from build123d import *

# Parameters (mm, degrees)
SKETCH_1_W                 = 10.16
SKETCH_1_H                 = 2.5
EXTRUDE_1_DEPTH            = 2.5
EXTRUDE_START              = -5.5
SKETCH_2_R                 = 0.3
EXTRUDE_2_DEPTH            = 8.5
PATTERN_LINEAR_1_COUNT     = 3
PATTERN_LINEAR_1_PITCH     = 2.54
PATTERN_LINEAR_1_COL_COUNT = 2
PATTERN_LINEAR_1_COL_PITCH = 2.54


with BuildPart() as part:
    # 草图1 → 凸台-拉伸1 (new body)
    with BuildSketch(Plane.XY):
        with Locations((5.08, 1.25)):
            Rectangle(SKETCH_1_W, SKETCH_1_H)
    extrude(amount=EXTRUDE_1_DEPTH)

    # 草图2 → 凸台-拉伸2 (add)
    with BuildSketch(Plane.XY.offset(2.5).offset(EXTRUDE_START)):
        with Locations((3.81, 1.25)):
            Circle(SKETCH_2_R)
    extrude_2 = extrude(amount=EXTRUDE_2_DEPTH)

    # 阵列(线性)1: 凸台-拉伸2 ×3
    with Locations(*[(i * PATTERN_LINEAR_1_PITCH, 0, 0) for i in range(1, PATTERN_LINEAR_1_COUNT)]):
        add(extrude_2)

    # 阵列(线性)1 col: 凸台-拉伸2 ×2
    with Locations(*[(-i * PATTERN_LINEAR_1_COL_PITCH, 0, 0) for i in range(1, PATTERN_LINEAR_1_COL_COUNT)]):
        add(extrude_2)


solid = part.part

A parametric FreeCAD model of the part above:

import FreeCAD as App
import Part
import Sketcher
Q = App.Units.Quantity

doc = App.newDocument("Part")
body = doc.addObject("PartDesign::Body", "Body")

# Sketch on XY plane
sketch1 = doc.addObject("Sketcher::SketchObject", "Sketch")
body.addObject(sketch1)
sketch1.AttachmentSupport = (doc.XY_Plane, [""])
sketch1.MapMode = "FlatFace"
sketch1.addGeometry(Part.LineSegment(App.Vector(0, 2.5, 0), App.Vector(0, 0, 0)), False)
sketch1.addGeometry(Part.LineSegment(App.Vector(0, 0, 0), App.Vector(10.2, 0, 0)), False)
sketch1.addGeometry(Part.LineSegment(App.Vector(10.2, 0, 0), App.Vector(10.2, 2.5, 0)), False)
sketch1.addGeometry(Part.LineSegment(App.Vector(10.2, 2.5, 0), App.Vector(0, 2.5, 0)), False)
sketch1.addConstraint(Sketcher.Constraint("Coincident", 0, 2, 1, 1))
sketch1.addConstraint(Sketcher.Constraint("Coincident", 1, 2, 2, 1))
sketch1.addConstraint(Sketcher.Constraint("Coincident", 2, 2, 3, 1))
sketch1.addConstraint(Sketcher.Constraint("Coincident", 3, 2, 0, 1))
sketch1.addConstraint(Sketcher.Constraint("Vertical", 0))
sketch1.addConstraint(Sketcher.Constraint("Horizontal", 1))
sketch1.addConstraint(Sketcher.Constraint("Vertical", 2))
sketch1.addConstraint(Sketcher.Constraint("Horizontal", 3))
sketch1.addConstraint(Sketcher.Constraint("Coincident", 0, 2, -1, 1))
sketch1.addConstraint(Sketcher.Constraint("DistanceY", 0, 2, 0, 1, Q("2.5 mm")))
sketch1.addConstraint(Sketcher.Constraint("DistanceX", 1, 1, 1, 2, Q("10.16 mm")))
pad1 = doc.addObject("PartDesign::Pad", "Pad")
body.addObject(pad1)
pad1.Profile = sketch1
pad1.Length = 2.5

# Sketch on XY plane
sketch2 = doc.addObject("Sketcher::SketchObject", "Sketch001")
body.addObject(sketch2)
sketch2.AttachmentSupport = (doc.XY_Plane, [""])
sketch2.MapMode = "FlatFace"
sketch2.AttachmentOffset = App.Placement(App.Vector(0, 0, -3), App.Rotation())
sketch2.addGeometry(Part.Circle(App.Vector(3.81, 1.25, 0), App.Vector(0, 0, 1), 0.3), False)
sketch2.addConstraint(Sketcher.Constraint("Diameter", 0, Q("0.6 mm")))
sketch2.addConstraint(Sketcher.Constraint("DistanceX", -1, 1, 0, 3, Q("3.81 mm")))
sketch2.addConstraint(Sketcher.Constraint("DistanceY", -1, 1, 0, 3, Q("1.25 mm")))
pad2 = doc.addObject("PartDesign::Pad", "Pad001")
body.addObject(pad2)
pad2.Profile = sketch2
pad2.Length = 8.5
doc.recompute()

linearpattern = doc.addObject("PartDesign::LinearPattern", "LinearPattern")
body.addObject(linearpattern)
linearpattern.Originals = [pad2]
linearpattern.Direction = (doc.X_Axis, [""])
linearpattern.Mode = "offset"
linearpattern.Offset = 2.54
linearpattern.Occurrences = 3
body.Tip = linearpattern
doc.recompute()

linearpattern2 = doc.addObject("PartDesign::LinearPattern", "LinearPattern001")
body.addObject(linearpattern2)
linearpattern2.Originals = [pad2]
linearpattern2.Direction = (doc.X_Axis, [""])
linearpattern2.Mode = "offset"
linearpattern2.Offset = 2.54
linearpattern2.Occurrences = 2
linearpattern2.Reversed = True
body.Tip = linearpattern2

doc.recompute()
